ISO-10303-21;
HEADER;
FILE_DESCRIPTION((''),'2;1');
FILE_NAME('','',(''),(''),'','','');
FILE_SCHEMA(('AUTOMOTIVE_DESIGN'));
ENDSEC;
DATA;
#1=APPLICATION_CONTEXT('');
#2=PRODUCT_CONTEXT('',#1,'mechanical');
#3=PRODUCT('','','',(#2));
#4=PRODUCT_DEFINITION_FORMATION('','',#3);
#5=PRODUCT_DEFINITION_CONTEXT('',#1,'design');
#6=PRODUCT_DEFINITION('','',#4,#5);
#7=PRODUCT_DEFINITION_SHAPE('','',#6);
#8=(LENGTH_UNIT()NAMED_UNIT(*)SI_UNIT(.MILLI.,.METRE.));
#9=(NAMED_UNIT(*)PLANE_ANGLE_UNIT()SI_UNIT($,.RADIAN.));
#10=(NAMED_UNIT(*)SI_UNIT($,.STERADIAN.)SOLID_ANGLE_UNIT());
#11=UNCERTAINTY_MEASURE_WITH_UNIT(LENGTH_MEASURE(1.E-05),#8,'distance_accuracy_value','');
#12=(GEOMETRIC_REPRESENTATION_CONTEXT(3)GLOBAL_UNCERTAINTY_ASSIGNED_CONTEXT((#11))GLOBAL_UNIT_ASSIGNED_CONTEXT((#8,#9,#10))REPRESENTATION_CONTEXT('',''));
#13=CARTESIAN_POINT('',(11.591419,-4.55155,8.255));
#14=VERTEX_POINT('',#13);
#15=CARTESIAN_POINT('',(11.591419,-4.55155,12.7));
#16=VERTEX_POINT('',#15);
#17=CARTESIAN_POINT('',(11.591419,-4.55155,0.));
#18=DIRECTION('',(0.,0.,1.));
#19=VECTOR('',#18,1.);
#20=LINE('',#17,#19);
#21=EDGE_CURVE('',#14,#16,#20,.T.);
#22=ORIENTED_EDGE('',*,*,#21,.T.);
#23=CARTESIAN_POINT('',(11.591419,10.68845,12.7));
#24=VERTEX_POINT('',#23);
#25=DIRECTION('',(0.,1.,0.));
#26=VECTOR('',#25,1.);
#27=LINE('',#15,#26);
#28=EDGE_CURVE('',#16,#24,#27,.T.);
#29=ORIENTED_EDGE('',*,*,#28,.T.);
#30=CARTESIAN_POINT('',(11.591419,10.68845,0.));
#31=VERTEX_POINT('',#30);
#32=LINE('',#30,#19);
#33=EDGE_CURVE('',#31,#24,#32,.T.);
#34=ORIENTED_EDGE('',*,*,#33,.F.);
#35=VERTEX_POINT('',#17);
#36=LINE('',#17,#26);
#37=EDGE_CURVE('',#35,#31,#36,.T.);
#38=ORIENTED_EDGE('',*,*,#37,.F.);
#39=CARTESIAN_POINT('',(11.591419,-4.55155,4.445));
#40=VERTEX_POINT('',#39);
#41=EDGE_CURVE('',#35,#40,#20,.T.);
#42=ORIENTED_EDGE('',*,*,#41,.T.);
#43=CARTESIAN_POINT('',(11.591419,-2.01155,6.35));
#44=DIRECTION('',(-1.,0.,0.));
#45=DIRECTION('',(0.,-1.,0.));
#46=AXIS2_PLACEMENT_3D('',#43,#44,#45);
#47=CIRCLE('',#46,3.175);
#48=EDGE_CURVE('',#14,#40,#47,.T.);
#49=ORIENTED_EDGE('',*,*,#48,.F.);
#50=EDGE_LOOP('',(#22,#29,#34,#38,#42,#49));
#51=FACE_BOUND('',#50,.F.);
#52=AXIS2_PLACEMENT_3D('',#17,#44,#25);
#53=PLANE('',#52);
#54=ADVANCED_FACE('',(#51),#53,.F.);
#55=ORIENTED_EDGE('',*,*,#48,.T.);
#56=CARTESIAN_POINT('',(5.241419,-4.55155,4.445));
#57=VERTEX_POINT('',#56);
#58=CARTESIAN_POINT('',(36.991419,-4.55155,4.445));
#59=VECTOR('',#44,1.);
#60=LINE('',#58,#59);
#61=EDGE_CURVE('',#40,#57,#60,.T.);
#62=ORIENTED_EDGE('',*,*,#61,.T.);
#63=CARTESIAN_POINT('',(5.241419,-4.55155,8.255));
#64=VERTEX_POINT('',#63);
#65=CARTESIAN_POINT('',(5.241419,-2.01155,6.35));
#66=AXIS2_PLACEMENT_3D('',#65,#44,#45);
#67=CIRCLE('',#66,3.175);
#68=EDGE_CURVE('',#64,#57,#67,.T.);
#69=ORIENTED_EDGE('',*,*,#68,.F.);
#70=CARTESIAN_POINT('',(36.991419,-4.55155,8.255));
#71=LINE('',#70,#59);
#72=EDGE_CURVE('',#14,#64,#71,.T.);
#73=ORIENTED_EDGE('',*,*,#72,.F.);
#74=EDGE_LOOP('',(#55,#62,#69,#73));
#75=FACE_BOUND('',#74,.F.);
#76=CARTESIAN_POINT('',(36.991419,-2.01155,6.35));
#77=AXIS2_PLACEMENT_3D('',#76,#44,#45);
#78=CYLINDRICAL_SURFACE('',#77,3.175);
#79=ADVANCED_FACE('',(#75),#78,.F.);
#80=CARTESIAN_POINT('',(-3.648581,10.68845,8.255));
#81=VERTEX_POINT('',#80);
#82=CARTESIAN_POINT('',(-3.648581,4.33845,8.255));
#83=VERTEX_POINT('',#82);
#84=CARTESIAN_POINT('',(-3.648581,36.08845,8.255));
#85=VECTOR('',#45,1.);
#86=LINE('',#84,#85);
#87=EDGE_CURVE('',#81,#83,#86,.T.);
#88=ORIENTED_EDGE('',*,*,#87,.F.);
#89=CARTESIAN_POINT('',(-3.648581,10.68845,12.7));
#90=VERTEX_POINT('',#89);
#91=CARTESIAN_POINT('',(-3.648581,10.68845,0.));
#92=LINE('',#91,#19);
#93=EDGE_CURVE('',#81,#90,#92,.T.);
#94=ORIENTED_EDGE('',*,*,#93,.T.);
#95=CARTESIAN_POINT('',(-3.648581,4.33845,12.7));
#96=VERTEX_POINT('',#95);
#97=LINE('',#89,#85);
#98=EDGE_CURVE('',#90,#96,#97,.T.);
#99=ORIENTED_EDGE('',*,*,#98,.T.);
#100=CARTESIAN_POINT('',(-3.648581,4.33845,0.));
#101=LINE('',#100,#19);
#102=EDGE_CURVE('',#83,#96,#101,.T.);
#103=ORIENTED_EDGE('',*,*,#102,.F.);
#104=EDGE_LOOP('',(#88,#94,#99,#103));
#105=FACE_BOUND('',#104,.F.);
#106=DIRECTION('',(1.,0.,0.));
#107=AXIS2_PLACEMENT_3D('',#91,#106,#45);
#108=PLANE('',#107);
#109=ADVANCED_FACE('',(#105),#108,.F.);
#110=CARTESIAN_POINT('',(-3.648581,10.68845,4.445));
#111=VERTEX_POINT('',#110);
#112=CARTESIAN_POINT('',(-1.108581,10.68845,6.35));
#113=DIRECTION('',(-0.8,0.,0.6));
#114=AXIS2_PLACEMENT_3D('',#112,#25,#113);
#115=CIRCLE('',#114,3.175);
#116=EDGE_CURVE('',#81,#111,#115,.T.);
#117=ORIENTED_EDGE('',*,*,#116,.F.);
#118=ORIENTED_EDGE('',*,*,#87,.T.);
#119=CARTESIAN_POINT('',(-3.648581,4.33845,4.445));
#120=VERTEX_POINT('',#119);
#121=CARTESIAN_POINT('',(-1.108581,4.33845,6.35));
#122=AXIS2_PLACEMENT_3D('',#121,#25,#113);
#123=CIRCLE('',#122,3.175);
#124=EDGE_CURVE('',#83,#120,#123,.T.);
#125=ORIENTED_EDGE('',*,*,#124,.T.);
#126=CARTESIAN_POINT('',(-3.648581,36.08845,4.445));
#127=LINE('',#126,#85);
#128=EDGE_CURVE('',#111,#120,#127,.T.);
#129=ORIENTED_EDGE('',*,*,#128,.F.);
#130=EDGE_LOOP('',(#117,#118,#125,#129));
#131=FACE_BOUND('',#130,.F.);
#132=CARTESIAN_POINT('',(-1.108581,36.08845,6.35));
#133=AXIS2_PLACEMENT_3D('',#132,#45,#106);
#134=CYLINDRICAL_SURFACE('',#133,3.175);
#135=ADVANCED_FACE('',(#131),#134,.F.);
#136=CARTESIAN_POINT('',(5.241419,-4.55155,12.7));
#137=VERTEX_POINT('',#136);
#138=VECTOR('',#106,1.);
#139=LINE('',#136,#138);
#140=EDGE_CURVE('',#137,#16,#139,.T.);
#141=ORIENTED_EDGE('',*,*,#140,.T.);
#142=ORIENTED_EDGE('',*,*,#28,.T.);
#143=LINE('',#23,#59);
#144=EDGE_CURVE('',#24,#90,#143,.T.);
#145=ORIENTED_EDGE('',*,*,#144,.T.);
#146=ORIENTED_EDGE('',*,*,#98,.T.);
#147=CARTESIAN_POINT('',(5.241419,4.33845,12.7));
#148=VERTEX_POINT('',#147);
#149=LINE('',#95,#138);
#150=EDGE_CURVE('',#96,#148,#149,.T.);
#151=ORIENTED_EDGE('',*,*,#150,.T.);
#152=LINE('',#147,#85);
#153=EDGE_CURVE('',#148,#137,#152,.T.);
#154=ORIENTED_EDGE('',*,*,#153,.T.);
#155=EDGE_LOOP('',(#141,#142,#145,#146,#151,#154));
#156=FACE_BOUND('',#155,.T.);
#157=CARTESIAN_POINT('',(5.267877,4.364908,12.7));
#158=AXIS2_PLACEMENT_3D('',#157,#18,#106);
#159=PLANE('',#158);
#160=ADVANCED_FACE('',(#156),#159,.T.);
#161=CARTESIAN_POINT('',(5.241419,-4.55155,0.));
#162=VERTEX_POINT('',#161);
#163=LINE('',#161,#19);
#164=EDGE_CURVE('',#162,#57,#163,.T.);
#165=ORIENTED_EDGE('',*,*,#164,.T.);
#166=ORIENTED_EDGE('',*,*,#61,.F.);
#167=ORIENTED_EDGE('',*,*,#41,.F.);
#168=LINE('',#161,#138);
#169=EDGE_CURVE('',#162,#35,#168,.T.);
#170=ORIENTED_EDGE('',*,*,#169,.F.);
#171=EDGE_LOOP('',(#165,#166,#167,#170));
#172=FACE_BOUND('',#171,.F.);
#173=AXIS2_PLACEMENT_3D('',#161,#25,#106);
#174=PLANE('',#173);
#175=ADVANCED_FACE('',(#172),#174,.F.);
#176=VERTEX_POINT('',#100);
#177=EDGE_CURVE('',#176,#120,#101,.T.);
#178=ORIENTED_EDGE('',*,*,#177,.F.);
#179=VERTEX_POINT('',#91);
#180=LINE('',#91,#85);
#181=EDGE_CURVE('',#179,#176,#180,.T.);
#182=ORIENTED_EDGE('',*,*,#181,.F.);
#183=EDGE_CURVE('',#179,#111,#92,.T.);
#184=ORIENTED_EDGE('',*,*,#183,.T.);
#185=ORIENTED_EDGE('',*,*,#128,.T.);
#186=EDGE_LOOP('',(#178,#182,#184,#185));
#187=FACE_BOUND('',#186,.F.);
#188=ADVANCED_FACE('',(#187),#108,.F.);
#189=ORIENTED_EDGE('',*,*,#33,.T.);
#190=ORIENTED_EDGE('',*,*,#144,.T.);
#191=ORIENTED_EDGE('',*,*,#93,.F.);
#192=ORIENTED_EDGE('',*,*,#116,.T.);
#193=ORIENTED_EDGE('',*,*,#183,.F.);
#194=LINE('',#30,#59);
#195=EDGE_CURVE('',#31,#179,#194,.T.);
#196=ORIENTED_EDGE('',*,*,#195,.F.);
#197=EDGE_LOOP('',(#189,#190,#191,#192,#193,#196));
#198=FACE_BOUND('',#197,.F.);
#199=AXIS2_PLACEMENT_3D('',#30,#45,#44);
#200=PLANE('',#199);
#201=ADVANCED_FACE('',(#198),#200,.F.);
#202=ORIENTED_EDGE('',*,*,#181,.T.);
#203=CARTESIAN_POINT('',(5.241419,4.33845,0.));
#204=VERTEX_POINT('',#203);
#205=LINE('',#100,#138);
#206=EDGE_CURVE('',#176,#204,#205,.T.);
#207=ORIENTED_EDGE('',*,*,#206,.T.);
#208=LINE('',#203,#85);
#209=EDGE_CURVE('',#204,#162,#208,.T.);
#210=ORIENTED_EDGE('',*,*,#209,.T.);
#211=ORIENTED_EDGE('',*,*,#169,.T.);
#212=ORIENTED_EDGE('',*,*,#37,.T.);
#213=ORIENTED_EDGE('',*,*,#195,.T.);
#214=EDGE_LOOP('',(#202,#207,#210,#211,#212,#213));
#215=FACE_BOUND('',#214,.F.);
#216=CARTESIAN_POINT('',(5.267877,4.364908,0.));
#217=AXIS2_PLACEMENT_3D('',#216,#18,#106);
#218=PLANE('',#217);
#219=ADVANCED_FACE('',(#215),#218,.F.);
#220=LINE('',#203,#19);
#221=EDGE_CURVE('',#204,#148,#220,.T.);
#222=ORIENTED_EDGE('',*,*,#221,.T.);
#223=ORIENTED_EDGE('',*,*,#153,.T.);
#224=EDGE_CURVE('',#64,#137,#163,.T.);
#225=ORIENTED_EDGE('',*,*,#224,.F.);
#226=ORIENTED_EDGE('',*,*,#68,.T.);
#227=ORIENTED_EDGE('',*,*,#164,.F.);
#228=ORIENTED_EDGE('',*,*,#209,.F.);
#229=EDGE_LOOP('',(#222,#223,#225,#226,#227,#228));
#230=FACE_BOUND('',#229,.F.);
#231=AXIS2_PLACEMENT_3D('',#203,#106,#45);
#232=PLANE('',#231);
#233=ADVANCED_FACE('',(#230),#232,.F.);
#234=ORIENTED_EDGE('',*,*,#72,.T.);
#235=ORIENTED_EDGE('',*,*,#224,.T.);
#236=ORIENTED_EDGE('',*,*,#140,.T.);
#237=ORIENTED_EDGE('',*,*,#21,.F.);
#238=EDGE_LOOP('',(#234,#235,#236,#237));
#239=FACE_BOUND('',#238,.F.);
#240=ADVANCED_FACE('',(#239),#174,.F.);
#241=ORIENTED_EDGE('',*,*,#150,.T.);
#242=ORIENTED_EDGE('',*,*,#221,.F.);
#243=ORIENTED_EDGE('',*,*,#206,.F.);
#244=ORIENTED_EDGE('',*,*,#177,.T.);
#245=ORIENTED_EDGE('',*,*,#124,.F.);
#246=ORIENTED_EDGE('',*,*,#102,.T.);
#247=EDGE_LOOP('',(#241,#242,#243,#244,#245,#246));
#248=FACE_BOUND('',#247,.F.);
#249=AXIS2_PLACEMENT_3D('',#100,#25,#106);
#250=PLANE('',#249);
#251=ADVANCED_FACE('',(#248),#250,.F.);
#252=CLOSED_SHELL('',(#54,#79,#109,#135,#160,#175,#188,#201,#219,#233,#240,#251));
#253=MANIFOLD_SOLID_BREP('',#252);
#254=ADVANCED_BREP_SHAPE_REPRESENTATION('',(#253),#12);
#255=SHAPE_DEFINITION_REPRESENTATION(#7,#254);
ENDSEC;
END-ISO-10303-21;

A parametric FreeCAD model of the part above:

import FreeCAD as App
import Part
import Sketcher
from FreeCAD import Vector
Q = App.Units.Quantity


def add_polygon(sketch, points):
    """Adds a closed chain of lines whose ends are joined by coincident constraints."""
    first, n = sketch.GeometryCount, len(points)
    for a, b in zip(points, points[1:] + points[:1]):
        sketch.addGeometry(Part.LineSegment(App.Vector(*a, 0), App.Vector(*b, 0)), False)
    for i in range(n):
        sketch.addConstraint(Sketcher.Constraint("Coincident", first + i, 2, first + (i + 1) % n, 1))

doc = App.newDocument("Part")
body = doc.addObject("PartDesign::Body", "Body")

sketch1 = doc.addObject("Sketcher::SketchObject", "Sketch")
body.addObject(sketch1)
sketch1.AttachmentSupport = (doc.XY_Plane, [""])
sketch1.MapMode = "FlatFace"
add_polygon(sketch1, [(-4, 11), (-4, 4), (5, 4), (5, -5), (12, -5), (12, 11)])
sketch1.addConstraint(Sketcher.Constraint("Vertical", 0))
sketch1.addConstraint(Sketcher.Constraint("Horizontal", 1))
sketch1.addConstraint(Sketcher.Constraint("Vertical", 2))
sketch1.addConstraint(Sketcher.Constraint("Horizontal", 3))
sketch1.addConstraint(Sketcher.Constraint("Vertical", 4))
sketch1.addConstraint(Sketcher.Constraint("Horizontal", 5))
sketch1.addConstraint(Sketcher.Constraint("Equal", 3, 0))
sketch1.addConstraint(Sketcher.Constraint("Equal", 1, 2))
sketch1.addConstraint(Sketcher.Constraint("DistanceX", 5, 2, 5, 1, Q("0.6 in")))
sketch1.addConstraint(Sketcher.Constraint("DistanceX", 1, 1, 1, 2, Q("0.35 in")))
sketch1.addConstraint(Sketcher.Constraint("DistanceX", 0, 2, -1, 1, 3.648581))
sketch1.addConstraint(Sketcher.Constraint("DistanceY", -1, 1, 0, 2, 4.33845))
pad1 = doc.addObject("PartDesign::Pad", "Pad")
body.addObject(pad1)
pad1.Profile = sketch1
pad1.Length = Q("0.5 in")

sketch2 = doc.addObject("Sketcher::SketchObject", "Sketch001")
body.addObject(sketch2)
sketch2.AttachmentSupport = (doc.XZ_Plane, [""])
sketch2.MapMode = "FlatFace"
sketch2.AttachmentOffset = App.Placement(Vector(0, 0, -10.68845), App.Rotation())
sketch2.addGeometry(Part.Circle(Vector(-1.1, 6.3, 0), Vector(0, 0, 1), 3.2), False)
sketch2.addConstraint(Sketcher.Constraint("Diameter", 0, Q("0.25 in")))
sketch2.addConstraint(Sketcher.Constraint("DistanceY", -1, 1, 0, 3, Q("0.25 in")))
sketch2.addConstraint(Sketcher.Constraint("DistanceX", 0, 3, -1, 1, 1.108581))
doc.recompute()
hole = doc.addObject("PartDesign::Hole", "Hole")
body.addObject(hole)
hole.Profile = sketch2
hole.ThreadType = "None"
hole.Diameter = Q("0.25 in")
hole.DepthType = "Dimension"
hole.Depth = Q("1 in")
hole.DrillPoint = "Angled"
hole.DrillPointAngle = 118
hole.Reversed = True

sketch3 = doc.addObject("Sketcher::SketchObject", "Sketch002")
body.addObject(sketch3)
sketch3.AttachmentSupport = (doc.YZ_Plane, [""])
sketch3.MapMode = "FlatFace"
sketch3.AttachmentOffset = App.Placement(Vector(0, 0, 11.591419), App.Rotation())
sketch3.addGeometry(Part.Circle(Vector(-2, 6.3, 0), Vector(0, 0, 1), 3.2), False)
sketch3.addConstraint(Sketcher.Constraint("Diameter", 0, Q("0.25 in")))
sketch3.addConstraint(Sketcher.Constraint("DistanceY", -1, 1, 0, 3, Q("0.25 in")))
sketch3.addConstraint(Sketcher.Constraint("DistanceX", 0, 3, -1, 1, 2.01155))
doc.recompute()
hole2 = doc.addObject("PartDesign::Hole", "Hole001")
body.addObject(hole2)
hole2.Profile = sketch3
hole2.ThreadType = "None"
hole2.Diameter = Q("0.25 in")
hole2.DepthType = "Dimension"
hole2.Depth = Q("1 in")
hole2.DrillPoint = "Angled"
hole2.DrillPointAngle = 118

doc.recompute()
